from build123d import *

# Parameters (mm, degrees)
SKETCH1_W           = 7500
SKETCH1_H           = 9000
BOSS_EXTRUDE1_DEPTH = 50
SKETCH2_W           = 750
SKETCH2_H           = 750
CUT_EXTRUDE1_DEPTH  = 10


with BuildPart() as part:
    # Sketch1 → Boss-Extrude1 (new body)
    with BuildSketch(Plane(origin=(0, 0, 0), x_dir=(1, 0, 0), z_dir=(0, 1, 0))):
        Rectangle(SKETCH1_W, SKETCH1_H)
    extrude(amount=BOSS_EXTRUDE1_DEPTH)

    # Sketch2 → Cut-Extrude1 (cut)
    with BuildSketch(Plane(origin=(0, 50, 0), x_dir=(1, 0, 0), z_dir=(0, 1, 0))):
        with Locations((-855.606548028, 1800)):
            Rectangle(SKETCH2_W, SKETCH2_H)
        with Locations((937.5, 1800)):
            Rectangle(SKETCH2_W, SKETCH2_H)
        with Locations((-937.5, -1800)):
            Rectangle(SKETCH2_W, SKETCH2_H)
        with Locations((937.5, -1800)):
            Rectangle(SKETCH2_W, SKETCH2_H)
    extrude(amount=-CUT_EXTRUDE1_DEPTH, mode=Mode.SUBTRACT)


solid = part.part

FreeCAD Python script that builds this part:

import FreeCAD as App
import Part
import Sketcher
from FreeCAD import Vector
Q = App.Units.Quantity

doc = App.newDocument("Part")
body = doc.addObject("PartDesign::Body", "Body")

sketch1 = body.newObject("Sketcher::SketchObject", "Sketch")
sketch1.AttachmentSupport = (doc.getObject("XZ_Plane"), [""])
sketch1.MapMode = "FlatFace"
sketch1.addGeometry([
    Part.LineSegment(Vector(-3750, -4500, 0), Vector(-3750, 4500, 0)),
    Part.LineSegment(Vector(-3750, 4500, 0), Vector(3750, 4500, 0)),
    Part.LineSegment(Vector(3750, 4500, 0), Vector(3750, -4500, 0)),
    Part.LineSegment(Vector(3750, -4500, 0), Vector(-3750, -4500, 0)),
], False)
sketch1.addConstraint([
    Sketcher.Constraint("Coincident", 0, 2, 1, 1),
    Sketcher.Constraint("Coincident", 1, 2, 2, 1),
    Sketcher.Constraint("Coincident", 2, 2, 3, 1),
    Sketcher.Constraint("Coincident", 3, 2, 0, 1),
    Sketcher.Constraint("Vertical", 0),
    Sketcher.Constraint("Horizontal", 1),
    Sketcher.Constraint("Vertical", 2),
    Sketcher.Constraint("Horizontal", 3),
    Sketcher.Constraint("Symmetric", 0, 2, 2, 2, -1, 1),
    Sketcher.Constraint("DistanceX", 1, 1, 1, 2, Q("7500 mm")),
    Sketcher.Constraint("DistanceY", 0, 1, 0, 2, Q("9000 mm")),
])
pad1 = body.newObject("PartDesign::Pad", "Pad")
pad1.Profile = sketch1
pad1.Length = 50
pad1.Reversed = True

sketch2 = body.newObject("Sketcher::SketchObject", "Sketch001")
sketch2.AttachmentSupport = (doc.getObject("XZ_Plane"), [""])
sketch2.MapMode = "FlatFace"
sketch2.AttachmentOffset = App.Placement(Vector(0, 0, -50), App.Rotation())
sketch2.addGeometry([
    Part.LineSegment(Vector(-1231, -2175, 0), Vector(-1231, -1425, 0)),
    Part.LineSegment(Vector(-1231, -1425, 0), Vector(-481, -1425, 0)),
    Part.LineSegment(Vector(-481, -1425, 0), Vector(-481, -2175, 0)),
    Part.LineSegment(Vector(-481, -2175, 0), Vector(-1231, -2175, 0)),
    Part.LineSegment(Vector(562, -2175, 0), Vector(562, -1425, 0)),
    Part.LineSegment(Vector(562, -1425, 0), Vector(1312, -1425, 0)),
    Part.LineSegment(Vector(1312, -1425, 0), Vector(1312, -2175, 0)),
    Part.LineSegment(Vector(1312, -2175, 0), Vector(562, -2175, 0)),
    Part.LineSegment(Vector(-1312, 1425, 0), Vector(-1312, 2175, 0)),
    Part.LineSegment(Vector(-1312, 2175, 0), Vector(-562, 2175, 0)),
    Part.LineSegment(Vector(-562, 2175, 0), Vector(-562, 1425, 0)),
    Part.LineSegment(Vector(-562, 1425, 0), Vector(-1312, 1425, 0)),
    Part.LineSegment(Vector(562, 1425, 0), Vector(562, 2175, 0)),
    Part.LineSegment(Vector(562, 2175, 0), Vector(1312, 2175, 0)),
    Part.LineSegment(Vector(1312, 2175, 0), Vector(1312, 1425, 0)),
    Part.LineSegment(Vector(1312, 1425, 0), Vector(562, 1425, 0)),
], False)
sketch2.addConstraint([
    Sketcher.Constraint("Coincident", 0, 2, 1, 1),
    Sketcher.Constraint("Coincident", 1, 2, 2, 1),
    Sketcher.Constraint("Coincident", 2, 2, 3, 1),
    Sketcher.Constraint("Coincident", 3, 2, 0, 1),
    Sketcher.Constraint("Coincident", 4, 2, 5, 1),
    Sketcher.Constraint("Coincident", 5, 2, 6, 1),
    Sketcher.Constraint("Coincident", 6, 2, 7, 1),
    Sketcher.Constraint("Coincident", 7, 2, 4, 1),
    Sketcher.Constraint("Coincident", 8, 2, 9, 1),
    Sketcher.Constraint("Coincident", 9, 2, 10, 1),
    Sketcher.Constraint("Coincident", 10, 2, 11, 1),
    Sketcher.Constraint("Coincident", 11, 2, 8, 1),
    Sketcher.Constraint("Coincident", 12, 2, 13, 1),
    Sketcher.Constraint("Coincident", 13, 2, 14, 1),
    Sketcher.Constraint("Coincident", 14, 2, 15, 1),
    Sketcher.Constraint("Coincident", 15, 2, 12, 1),
    Sketcher.Constraint("Vertical", 0),
    Sketcher.Constraint("Horizontal", 1),
    Sketcher.Constraint("Vertical", 2),
    Sketcher.Constraint("Horizontal", 3),
    Sketcher.Constraint("Vertical", 4),
    Sketcher.Constraint("Horizontal", 5),
    Sketcher.Constraint("Vertical", 6),
    Sketcher.Constraint("Horizontal", 7),
    Sketcher.Constraint("Vertical", 8),
    Sketcher.Constraint("Horizontal", 9),
    Sketcher.Constraint("Vertical", 10),
    Sketcher.Constraint("Horizontal", 11),
    Sketcher.Constraint("Vertical", 12),
    Sketcher.Constraint("Horizontal", 13),
    Sketcher.Constraint("Vertical", 14),
    Sketcher.Constraint("Horizontal", 15),
    Sketcher.Constraint("Symmetric", 6, 2, 8, 2, -1, 1),
    Sketcher.Constraint("Symmetric", 4, 2, 10, 2, -1, 1),
    Sketcher.Constraint("Symmetric", 9, 2, 12, 2, -2),
    Sketcher.Constraint("Symmetric", 11, 2, 14, 2, -2),
    Sketcher.Constraint("Horizontal", 1, 2, 4, 2),
    Sketcher.Constraint("Horizontal", 3, 2, 6, 2),
    Sketcher.Constraint("Equal", 3, 5),
    Sketcher.Constraint("Equal", 15, 0),
    Sketcher.Constraint("DistanceX", 1, 1, 1, 2, Q("750 mm")),
    Sketcher.Constraint("DistanceY", 0, 2, -1, 1, Q("1425 mm")),
    Sketcher.Constraint("DistanceX", 8, 2, 4, 2, Q("1875 mm")),
    Sketcher.Constraint("DistanceX", 0, 2, -1, 1, Q("1230.606548 mm")),
])
pocket1 = body.newObject("PartDesign::Pocket", "Pocket")
pocket1.Profile = sketch2
pocket1.Length = 10
pocket1.Reversed = True

doc.recompute()
